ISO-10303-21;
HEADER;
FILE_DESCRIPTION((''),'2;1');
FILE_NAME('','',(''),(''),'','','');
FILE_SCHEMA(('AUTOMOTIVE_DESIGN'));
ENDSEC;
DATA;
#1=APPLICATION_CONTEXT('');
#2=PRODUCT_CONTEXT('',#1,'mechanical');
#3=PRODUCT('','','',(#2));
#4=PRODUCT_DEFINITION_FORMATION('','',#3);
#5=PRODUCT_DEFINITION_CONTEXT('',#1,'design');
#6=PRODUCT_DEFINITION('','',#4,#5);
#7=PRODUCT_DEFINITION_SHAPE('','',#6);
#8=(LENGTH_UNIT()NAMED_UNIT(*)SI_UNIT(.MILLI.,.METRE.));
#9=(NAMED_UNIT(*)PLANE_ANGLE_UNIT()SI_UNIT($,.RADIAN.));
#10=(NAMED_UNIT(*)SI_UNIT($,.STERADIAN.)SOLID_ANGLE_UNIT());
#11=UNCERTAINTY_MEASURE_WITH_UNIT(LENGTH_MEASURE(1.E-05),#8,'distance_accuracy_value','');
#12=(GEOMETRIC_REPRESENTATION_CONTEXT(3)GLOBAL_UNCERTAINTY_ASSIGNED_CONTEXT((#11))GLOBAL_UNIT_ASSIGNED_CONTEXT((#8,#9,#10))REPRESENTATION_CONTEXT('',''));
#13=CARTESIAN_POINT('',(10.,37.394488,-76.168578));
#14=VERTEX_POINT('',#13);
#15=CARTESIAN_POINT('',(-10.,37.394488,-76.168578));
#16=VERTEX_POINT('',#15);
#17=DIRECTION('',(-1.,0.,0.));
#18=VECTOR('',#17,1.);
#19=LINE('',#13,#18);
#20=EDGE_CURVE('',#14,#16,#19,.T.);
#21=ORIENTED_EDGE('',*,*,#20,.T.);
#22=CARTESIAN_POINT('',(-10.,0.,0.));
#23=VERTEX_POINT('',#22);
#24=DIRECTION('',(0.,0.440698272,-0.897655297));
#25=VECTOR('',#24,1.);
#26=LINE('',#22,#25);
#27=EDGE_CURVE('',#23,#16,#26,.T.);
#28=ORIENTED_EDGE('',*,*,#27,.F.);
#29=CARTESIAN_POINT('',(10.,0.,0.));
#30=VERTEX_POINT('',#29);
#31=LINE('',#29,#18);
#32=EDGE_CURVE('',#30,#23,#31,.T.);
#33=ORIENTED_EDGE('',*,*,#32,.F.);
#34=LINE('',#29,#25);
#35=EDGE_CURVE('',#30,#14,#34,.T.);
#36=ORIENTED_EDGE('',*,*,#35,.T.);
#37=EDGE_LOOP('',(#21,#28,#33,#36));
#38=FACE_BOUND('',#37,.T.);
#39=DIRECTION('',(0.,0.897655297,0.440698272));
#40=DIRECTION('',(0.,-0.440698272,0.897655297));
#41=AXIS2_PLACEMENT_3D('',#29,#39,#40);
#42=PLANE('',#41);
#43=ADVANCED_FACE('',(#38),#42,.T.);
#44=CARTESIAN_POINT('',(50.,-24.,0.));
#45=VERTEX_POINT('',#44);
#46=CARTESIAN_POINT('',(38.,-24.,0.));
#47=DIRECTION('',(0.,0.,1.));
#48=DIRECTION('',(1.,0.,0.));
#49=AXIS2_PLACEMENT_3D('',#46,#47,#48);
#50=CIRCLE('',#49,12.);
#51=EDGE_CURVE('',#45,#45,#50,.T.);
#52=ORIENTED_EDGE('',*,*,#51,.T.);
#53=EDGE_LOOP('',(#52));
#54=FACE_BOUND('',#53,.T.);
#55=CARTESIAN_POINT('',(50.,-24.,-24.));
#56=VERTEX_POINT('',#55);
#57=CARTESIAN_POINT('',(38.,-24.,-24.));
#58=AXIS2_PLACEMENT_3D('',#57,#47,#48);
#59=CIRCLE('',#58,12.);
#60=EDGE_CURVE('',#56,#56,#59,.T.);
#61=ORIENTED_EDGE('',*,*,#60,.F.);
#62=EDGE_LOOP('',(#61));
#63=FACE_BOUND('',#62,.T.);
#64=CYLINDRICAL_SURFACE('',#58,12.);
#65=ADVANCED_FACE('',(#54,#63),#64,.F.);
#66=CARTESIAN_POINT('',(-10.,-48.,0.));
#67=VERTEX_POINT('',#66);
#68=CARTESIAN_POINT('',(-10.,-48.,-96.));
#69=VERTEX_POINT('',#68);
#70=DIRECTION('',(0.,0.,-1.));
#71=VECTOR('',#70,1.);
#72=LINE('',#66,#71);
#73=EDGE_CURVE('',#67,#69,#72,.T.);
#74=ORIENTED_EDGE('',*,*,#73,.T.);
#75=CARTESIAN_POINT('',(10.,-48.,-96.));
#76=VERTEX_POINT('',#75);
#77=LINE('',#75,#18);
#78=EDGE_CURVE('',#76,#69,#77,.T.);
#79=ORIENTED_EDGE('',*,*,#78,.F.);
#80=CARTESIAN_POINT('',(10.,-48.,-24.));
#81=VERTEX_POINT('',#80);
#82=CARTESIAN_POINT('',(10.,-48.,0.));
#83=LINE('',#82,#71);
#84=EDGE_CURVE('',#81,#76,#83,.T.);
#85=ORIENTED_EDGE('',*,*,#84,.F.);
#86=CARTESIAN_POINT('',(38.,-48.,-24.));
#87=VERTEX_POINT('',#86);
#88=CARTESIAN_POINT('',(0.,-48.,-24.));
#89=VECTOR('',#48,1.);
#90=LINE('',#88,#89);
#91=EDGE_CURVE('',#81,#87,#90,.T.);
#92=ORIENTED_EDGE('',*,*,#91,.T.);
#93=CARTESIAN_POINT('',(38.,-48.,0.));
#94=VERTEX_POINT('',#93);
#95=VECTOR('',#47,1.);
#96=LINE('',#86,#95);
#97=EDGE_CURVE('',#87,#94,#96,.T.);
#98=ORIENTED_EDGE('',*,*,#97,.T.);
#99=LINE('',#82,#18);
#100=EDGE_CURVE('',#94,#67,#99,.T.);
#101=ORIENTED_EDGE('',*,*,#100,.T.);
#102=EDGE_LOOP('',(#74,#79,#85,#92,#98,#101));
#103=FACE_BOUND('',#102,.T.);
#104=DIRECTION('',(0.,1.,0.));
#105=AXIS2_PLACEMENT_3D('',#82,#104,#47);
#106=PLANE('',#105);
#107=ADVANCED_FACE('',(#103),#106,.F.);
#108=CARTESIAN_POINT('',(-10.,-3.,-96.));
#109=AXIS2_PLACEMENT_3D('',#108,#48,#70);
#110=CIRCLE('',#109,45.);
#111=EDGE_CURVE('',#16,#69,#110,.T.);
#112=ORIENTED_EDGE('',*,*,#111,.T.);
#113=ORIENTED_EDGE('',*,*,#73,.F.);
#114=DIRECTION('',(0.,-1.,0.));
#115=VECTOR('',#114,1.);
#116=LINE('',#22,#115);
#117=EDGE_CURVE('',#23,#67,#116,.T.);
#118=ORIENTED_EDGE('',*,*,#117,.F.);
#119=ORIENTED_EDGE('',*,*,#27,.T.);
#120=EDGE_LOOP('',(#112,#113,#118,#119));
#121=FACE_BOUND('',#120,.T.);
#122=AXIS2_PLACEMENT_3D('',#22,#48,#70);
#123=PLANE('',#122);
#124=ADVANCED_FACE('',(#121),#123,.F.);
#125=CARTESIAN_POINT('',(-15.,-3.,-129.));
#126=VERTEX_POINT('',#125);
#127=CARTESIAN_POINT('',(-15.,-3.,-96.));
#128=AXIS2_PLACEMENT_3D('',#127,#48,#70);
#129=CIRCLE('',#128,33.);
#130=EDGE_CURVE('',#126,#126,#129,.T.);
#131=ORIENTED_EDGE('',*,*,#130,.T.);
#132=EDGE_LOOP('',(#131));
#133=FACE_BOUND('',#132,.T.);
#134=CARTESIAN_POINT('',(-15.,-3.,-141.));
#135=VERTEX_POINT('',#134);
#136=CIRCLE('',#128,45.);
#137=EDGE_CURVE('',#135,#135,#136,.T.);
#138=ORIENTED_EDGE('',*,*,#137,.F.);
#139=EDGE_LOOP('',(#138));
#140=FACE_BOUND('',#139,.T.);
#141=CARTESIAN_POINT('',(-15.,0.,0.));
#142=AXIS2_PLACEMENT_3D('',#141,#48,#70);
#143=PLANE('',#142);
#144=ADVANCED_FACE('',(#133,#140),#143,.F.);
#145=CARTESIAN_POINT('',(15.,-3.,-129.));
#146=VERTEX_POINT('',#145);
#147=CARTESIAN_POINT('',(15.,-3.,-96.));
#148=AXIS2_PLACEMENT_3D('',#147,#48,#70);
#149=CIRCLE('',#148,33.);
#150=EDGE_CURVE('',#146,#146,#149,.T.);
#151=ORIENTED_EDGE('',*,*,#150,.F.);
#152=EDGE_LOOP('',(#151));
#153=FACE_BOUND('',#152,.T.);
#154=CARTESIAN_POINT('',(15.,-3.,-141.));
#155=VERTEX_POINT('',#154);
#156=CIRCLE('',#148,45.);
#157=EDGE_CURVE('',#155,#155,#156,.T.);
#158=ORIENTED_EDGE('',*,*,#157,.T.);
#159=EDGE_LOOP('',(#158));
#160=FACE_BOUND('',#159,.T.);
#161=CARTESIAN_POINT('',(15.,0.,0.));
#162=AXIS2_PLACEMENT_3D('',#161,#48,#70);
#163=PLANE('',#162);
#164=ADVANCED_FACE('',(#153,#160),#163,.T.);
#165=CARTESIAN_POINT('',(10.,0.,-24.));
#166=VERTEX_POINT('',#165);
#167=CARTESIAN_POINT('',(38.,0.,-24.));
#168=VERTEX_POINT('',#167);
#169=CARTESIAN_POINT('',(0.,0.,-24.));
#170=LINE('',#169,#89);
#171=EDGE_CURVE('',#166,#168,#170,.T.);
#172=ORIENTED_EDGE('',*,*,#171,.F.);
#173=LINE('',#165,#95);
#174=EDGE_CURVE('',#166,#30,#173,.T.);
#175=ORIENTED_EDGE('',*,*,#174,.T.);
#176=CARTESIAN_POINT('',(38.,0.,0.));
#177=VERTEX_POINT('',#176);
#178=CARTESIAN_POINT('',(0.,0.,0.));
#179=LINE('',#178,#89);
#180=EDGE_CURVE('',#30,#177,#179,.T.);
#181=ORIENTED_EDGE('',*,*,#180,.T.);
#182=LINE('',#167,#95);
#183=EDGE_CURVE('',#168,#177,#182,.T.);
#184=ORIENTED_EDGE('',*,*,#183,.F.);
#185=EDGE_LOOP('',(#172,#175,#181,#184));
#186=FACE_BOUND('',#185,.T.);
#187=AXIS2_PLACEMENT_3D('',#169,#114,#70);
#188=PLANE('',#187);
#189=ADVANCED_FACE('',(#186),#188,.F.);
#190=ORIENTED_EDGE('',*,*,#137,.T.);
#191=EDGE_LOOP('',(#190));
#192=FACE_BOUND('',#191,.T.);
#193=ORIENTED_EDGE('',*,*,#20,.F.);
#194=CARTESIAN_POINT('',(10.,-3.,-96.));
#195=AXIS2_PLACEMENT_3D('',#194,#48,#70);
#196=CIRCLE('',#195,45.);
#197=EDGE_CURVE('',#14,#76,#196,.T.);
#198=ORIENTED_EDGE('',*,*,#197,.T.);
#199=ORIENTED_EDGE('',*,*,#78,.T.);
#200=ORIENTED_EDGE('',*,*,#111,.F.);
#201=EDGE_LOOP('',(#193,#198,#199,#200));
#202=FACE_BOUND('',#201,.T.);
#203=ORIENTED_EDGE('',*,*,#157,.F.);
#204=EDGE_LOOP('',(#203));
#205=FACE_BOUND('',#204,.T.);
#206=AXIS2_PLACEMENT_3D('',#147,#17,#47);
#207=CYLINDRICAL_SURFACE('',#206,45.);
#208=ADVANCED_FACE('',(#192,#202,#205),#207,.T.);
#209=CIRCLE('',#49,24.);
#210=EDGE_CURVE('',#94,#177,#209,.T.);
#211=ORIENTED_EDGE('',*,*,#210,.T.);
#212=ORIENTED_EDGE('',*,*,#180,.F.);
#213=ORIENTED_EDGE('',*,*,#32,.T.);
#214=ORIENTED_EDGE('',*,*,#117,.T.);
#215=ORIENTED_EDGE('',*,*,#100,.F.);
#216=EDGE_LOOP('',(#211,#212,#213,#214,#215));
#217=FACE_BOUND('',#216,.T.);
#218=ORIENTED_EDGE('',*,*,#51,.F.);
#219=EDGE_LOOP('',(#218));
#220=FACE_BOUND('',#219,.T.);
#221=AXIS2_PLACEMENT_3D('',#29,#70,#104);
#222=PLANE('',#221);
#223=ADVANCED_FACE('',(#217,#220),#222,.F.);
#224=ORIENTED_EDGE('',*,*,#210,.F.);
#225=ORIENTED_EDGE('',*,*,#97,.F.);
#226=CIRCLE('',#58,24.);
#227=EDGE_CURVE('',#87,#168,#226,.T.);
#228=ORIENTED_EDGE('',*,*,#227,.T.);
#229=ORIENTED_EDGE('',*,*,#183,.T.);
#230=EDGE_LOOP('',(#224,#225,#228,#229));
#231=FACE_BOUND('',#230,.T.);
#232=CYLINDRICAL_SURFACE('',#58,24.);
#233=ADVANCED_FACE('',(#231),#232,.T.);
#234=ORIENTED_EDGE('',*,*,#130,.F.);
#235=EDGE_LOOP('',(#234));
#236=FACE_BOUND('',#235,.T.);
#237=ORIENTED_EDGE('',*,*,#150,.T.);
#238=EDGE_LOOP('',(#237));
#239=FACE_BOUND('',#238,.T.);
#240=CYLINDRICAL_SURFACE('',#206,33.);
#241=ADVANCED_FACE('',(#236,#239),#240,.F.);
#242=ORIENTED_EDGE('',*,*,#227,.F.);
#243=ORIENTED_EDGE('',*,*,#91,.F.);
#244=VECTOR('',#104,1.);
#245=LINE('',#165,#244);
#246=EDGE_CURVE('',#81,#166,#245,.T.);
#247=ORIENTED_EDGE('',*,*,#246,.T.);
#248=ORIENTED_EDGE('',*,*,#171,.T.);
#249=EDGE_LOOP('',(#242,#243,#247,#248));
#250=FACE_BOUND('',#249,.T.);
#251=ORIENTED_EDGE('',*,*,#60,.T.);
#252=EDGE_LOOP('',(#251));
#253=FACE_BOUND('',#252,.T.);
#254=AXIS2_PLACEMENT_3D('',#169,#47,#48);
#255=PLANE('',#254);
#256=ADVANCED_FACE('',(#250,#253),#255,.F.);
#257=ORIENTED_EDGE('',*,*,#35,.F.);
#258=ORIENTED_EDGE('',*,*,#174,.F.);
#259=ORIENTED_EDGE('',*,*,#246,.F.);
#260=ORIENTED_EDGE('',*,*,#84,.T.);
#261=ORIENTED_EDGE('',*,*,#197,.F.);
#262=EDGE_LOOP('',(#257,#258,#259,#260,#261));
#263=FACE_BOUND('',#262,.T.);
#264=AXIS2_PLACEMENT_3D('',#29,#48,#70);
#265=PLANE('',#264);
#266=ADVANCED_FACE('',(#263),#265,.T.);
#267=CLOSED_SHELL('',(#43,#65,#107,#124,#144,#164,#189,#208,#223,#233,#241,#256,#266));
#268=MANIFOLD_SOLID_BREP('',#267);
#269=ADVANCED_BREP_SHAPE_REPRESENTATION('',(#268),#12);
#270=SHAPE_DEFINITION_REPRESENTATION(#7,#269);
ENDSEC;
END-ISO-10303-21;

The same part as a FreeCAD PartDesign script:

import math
import FreeCAD as App
import Part
import Sketcher

doc = App.newDocument("Part")
body = doc.addObject("PartDesign::Body", "Body")

# Sketch on YZ plane
sketch1 = doc.addObject("Sketcher::SketchObject", "Sketch")
body.addObject(sketch1)
sketch1.AttachmentSupport = (doc.YZ_Plane, [""])
sketch1.MapMode = "FlatFace"
sketch1.addGeometry([
    Part.LineSegment(App.Vector(37, -76, 0), App.Vector(0, 0, 0)),
    Part.LineSegment(App.Vector(0, 0, 0), App.Vector(-48, 0, 0)),
    Part.LineSegment(App.Vector(-48, 0, 0), App.Vector(-48, -96, 0)),
    Part.ArcOfCircle(Part.Circle(App.Vector(-3, -96, 0), App.Vector(0, 0, 1), 45), math.radians(26), math.radians(180)),
], False)
sketch1.addConstraint([
    Sketcher.Constraint("Coincident", 0, 2, 1, 1),
    Sketcher.Constraint("Coincident", 1, 2, 2, 1),
    Sketcher.Constraint("Tangent", 2, 2, 3, 2),
    Sketcher.Constraint("Tangent", 3, 1, 0, 1),
    Sketcher.Constraint("Horizontal", 1),
    Sketcher.Constraint("Vertical", 2),
    Sketcher.Constraint("Coincident", 0, 2, -1, 1),
    Sketcher.Constraint("Radius", 3, 45.0),
    Sketcher.Constraint("DistanceX", 1, 2, 1, 1, 48.0),
    Sketcher.Constraint("DistanceY", 2, 2, 2, 1, 96.0),
])
pad1 = doc.addObject("PartDesign::Pad", "Pad")
body.addObject(pad1)
pad1.Profile = sketch1
pad1.Length = 20
pad1.Midplane = True

# Sketch on YZ plane
sketch2 = doc.addObject("Sketcher::SketchObject", "Sketch001")
body.addObject(sketch2)
sketch2.AttachmentSupport = (doc.YZ_Plane, [""])
sketch2.MapMode = "FlatFace"
sketch2.addGeometry([
    Part.Circle(App.Vector(-3, -96, 0), App.Vector(0, 0, 1), 45),
    Part.Circle(App.Vector(-3, -96, 0), App.Vector(0, 0, 1), 33),
], False)
sketch2.addConstraint([
    Sketcher.Constraint("Coincident", 1, 3, 0, 3),
    Sketcher.Constraint("Diameter", 0, 90.0),
    Sketcher.Constraint("Diameter", 1, 66.0),
    Sketcher.Constraint("DistanceX", 0, 3, -1, 1, 3.0),
    Sketcher.Constraint("DistanceY", 0, 3, -1, 1, 96.0),
])
pad2 = doc.addObject("PartDesign::Pad", "Pad001")
body.addObject(pad2)
pad2.Profile = sketch2
pad2.Length = 30
pad2.Midplane = True

# Sketch on XY plane
sketch3 = doc.addObject("Sketcher::SketchObject", "Sketch002")
body.addObject(sketch3)
sketch3.AttachmentSupport = (doc.XY_Plane, [""])
sketch3.MapMode = "FlatFace"
sketch3.addGeometry([
    Part.LineSegment(App.Vector(10, -48, 0), App.Vector(38, -48, 0)),  # 0
    Part.ArcOfCircle(Part.Circle(App.Vector(38, -24, 0), App.Vector(0, 0, 1), 24), math.radians(-90), math.radians(90)),  # 1
    Part.LineSegment(App.Vector(38, 0, 0), App.Vector(10, 0, 0)),  # 2
    Part.LineSegment(App.Vector(10, 0, 0), App.Vector(10, -48, 0)),  # 3
    Part.Circle(App.Vector(38, -24, 0), App.Vector(0, 0, 1), 12),  # 4
], False)
sketch3.addConstraint([
    Sketcher.Constraint("Tangent", 0, 2, 1, 1),
    Sketcher.Constraint("Tangent", 1, 2, 2, 1),
    Sketcher.Constraint("Coincident", 2, 2, 3, 1),
    Sketcher.Constraint("Coincident", 3, 2, 0, 1),
    Sketcher.Constraint("Horizontal", 0),
    Sketcher.Constraint("Horizontal", 2),
    Sketcher.Constraint("Vertical", 3),
    Sketcher.Constraint("Coincident", 4, 3, 1, 3),
    Sketcher.Constraint("PointOnObject", 1, 2, -1),
    Sketcher.Constraint("Diameter", 4, 24.0),
    Sketcher.Constraint("Radius", 1, 24.0),
    Sketcher.Constraint("DistanceX", 0, 1, 0, 2, 28.0),
    Sketcher.Constraint("DistanceX", -1, 1, 1, 3, 38.0),
])
pad3 = doc.addObject("PartDesign::Pad", "Pad002")
body.addObject(pad3)
pad3.Profile = sketch3
pad3.Length = 24
pad3.Reversed = True

doc.recompute()
